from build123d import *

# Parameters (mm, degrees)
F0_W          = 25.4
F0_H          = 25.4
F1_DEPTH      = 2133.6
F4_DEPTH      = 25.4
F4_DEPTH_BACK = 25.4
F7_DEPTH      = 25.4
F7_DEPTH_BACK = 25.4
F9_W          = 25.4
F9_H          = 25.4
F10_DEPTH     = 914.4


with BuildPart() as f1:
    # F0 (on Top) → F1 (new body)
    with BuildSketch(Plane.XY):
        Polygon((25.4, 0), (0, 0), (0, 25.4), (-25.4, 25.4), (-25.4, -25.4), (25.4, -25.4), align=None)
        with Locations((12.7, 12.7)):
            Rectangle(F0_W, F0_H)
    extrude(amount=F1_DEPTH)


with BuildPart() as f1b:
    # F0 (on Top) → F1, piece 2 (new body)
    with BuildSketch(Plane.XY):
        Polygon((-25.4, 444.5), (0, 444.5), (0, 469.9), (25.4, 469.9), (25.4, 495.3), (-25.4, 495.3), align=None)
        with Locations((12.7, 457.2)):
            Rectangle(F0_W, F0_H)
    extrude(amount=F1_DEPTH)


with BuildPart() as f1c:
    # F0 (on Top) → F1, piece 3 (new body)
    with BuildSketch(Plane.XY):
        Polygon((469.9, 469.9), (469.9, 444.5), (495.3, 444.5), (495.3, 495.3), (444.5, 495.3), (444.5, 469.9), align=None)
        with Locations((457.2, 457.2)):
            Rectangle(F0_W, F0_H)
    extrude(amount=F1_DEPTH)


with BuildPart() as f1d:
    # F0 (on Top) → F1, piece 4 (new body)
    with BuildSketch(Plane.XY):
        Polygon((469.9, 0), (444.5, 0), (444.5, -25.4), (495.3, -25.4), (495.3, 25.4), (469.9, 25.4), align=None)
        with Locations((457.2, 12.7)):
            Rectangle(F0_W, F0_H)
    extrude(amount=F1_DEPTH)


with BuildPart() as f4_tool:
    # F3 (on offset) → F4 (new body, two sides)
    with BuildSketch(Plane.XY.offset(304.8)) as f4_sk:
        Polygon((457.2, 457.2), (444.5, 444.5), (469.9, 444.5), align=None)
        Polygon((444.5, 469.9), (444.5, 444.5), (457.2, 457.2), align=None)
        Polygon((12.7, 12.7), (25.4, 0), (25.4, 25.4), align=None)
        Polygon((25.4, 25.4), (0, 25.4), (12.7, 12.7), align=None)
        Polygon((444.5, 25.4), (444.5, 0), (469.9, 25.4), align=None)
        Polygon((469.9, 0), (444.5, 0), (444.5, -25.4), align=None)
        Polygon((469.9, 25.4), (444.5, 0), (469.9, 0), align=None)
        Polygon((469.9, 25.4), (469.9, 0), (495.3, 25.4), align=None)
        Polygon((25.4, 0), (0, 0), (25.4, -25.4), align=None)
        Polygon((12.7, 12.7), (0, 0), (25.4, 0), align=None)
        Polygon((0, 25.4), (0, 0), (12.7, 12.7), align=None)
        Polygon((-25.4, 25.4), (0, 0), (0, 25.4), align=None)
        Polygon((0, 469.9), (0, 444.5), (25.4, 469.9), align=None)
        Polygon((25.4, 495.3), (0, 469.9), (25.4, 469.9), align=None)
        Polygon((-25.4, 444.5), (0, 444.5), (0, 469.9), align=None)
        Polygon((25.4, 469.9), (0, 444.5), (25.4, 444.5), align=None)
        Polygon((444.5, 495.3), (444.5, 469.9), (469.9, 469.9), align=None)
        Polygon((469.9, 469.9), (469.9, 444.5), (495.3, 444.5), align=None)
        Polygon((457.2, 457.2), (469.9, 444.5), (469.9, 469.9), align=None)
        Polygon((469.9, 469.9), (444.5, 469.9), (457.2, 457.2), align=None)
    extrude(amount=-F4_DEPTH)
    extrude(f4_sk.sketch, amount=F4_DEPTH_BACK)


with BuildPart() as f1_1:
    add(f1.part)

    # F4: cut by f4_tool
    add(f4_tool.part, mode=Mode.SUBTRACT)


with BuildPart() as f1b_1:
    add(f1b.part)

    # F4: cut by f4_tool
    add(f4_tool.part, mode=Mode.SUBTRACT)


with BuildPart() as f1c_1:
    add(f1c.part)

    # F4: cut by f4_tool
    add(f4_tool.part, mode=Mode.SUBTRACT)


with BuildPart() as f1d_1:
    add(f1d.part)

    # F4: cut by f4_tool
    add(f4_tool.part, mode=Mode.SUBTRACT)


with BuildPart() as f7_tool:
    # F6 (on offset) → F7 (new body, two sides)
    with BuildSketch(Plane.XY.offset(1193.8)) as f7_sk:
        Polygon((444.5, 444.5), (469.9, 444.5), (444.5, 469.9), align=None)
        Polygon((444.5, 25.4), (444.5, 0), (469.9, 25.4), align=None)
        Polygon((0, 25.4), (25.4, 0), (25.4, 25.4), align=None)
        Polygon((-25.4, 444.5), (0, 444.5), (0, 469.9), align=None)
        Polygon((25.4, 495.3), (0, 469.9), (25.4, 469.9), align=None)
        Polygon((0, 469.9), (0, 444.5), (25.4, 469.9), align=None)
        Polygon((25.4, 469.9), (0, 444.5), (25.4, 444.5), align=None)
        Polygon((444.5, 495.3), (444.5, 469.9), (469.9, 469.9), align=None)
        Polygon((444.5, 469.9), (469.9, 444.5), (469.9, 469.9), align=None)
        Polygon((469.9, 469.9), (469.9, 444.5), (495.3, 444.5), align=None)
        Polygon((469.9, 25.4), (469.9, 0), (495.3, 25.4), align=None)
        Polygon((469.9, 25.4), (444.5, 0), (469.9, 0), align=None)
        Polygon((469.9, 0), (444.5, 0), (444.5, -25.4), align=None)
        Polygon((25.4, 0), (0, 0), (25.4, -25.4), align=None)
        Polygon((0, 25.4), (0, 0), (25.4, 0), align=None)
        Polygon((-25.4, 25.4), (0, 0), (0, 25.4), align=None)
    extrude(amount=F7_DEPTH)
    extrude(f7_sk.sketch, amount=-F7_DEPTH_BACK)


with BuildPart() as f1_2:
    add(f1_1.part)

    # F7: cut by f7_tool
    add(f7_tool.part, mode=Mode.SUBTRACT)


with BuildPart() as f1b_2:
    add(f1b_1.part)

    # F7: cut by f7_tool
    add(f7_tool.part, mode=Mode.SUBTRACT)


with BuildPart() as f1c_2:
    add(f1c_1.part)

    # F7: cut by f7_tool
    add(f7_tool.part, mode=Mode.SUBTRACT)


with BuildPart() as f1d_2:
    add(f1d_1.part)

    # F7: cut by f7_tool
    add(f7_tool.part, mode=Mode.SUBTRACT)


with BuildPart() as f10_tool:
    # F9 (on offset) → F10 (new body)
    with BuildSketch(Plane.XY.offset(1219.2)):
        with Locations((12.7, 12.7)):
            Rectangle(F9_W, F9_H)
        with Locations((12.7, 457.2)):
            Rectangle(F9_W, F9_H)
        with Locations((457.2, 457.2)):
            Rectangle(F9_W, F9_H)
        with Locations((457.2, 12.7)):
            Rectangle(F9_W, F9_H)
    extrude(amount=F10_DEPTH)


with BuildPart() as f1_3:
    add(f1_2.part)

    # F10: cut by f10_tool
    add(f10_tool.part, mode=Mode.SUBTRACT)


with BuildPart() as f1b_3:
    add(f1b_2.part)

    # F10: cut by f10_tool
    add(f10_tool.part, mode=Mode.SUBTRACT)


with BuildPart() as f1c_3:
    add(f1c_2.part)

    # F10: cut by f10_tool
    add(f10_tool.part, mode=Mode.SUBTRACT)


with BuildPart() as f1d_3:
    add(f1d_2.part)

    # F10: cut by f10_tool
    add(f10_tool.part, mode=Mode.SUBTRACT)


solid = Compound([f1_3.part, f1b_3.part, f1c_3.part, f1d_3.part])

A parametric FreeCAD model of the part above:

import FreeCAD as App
import Part
import Sketcher
from FreeCAD import Vector
Q = App.Units.Quantity

doc = App.newDocument("Part")
body = doc.addObject("PartDesign::Body", "Body")

# Sketch on XY plane
sketch1 = body.newObject("Sketcher::SketchObject", "Sketch")
sketch1.AttachmentSupport = (doc.getObject("XY_Plane"), [""])
sketch1.MapMode = "FlatFace"
sketch1.addGeometry([
    Part.LineSegment(Vector(-25.4, 25.4, 0), Vector(-25.4, -25.4, 0)),
    Part.LineSegment(Vector(-25.4, -25.4, 0), Vector(25.4, -25.4, 0)),
    Part.LineSegment(Vector(25.4, -25.4, 0), Vector(25.4, 25.4, 0)),
    Part.LineSegment(Vector(25.4, 25.4, 0), Vector(-25.4, 25.4, 0)),
], False)
sketch1.addConstraint([
    Sketcher.Constraint("Coincident", 0, 2, 1, 1),
    Sketcher.Constraint("Coincident", 1, 2, 2, 1),
    Sketcher.Constraint("Coincident", 2, 2, 3, 1),
    Sketcher.Constraint("Coincident", 3, 2, 0, 1),
    Sketcher.Constraint("Vertical", 0),
    Sketcher.Constraint("Horizontal", 1),
    Sketcher.Constraint("Vertical", 2),
    Sketcher.Constraint("Horizontal", 3),
    Sketcher.Constraint("Symmetric", 0, 2, 2, 2, -1, 1),
    Sketcher.Constraint("Equal", 3, 0),
    Sketcher.Constraint("DistanceX", 1, 1, 1, 2, Q("2 in")),
])
pad1 = body.newObject("PartDesign::Pad", "Pad")
pad1.Profile = sketch1
pad1.Length = Q("84 in")
body2 = doc.addObject("PartDesign::Body", "Body001")

# Sketch on XY plane
sketch2 = body2.newObject("Sketcher::SketchObject", "Sketch001")
sketch2.AttachmentSupport = (doc.getObject("XY_Plane001"), [""])
sketch2.MapMode = "FlatFace"
sketch2.addGeometry([
    Part.LineSegment(Vector(-25.4, 444.5, 0), Vector(25.4, 444.5, 0)),
    Part.LineSegment(Vector(25.4, 444.5, 0), Vector(25.4, 495.3, 0)),
    Part.LineSegment(Vector(25.4, 495.3, 0), Vector(-25.4, 495.3, 0)),
    Part.LineSegment(Vector(-25.4, 495.3, 0), Vector(-25.4, 444.5, 0)),
], False)
sketch2.addConstraint([
    Sketcher.Constraint("Coincident", 0, 2, 1, 1),
    Sketcher.Constraint("Coincident", 1, 2, 2, 1),
    Sketcher.Constraint("Coincident", 2, 2, 3, 1),
    Sketcher.Constraint("Coincident", 3, 2, 0, 1),
    Sketcher.Constraint("Horizontal", 0),
    Sketcher.Constraint("Vertical", 1),
    Sketcher.Constraint("Horizontal", 2),
    Sketcher.Constraint("Vertical", 3),
    Sketcher.Constraint("Equal", 2, 1),
    Sketcher.Constraint("DistanceX", 0, 1, 0, 2, Q("2 in")),
    Sketcher.Constraint("DistanceX", -1, 1, 0, 2, Q("1 in")),
    Sketcher.Constraint("DistanceY", -1, 1, 0, 2, Q("17.5 in")),
])
pad2 = body2.newObject("PartDesign::Pad", "Pad001")
pad2.Profile = sketch2
pad2.Length = Q("84 in")
body3 = doc.addObject("PartDesign::Body", "Body002")

# Sketch on XY plane
sketch3 = body3.newObject("Sketcher::SketchObject", "Sketch002")
sketch3.AttachmentSupport = (doc.getObject("XY_Plane002"), [""])
sketch3.MapMode = "FlatFace"
sketch3.addGeometry([
    Part.LineSegment(Vector(495.3, 444.5, 0), Vector(495.3, 495.3, 0)),
    Part.LineSegment(Vector(495.3, 495.3, 0), Vector(444.5, 495.3, 0)),
    Part.LineSegment(Vector(444.5, 495.3, 0), Vector(444.5, 444.5, 0)),
    Part.LineSegment(Vector(444.5, 444.5, 0), Vector(495.3, 444.5, 0)),
], False)
sketch3.addConstraint([
    Sketcher.Constraint("Coincident", 0, 2, 1, 1),
    Sketcher.Constraint("Coincident", 1, 2, 2, 1),
    Sketcher.Constraint("Coincident", 2, 2, 3, 1),
    Sketcher.Constraint("Coincident", 3, 2, 0, 1),
    Sketcher.Constraint("Vertical", 0),
    Sketcher.Constraint("Horizontal", 1),
    Sketcher.Constraint("Vertical", 2),
    Sketcher.Constraint("Horizontal", 3),
    Sketcher.Constraint("Equal", 3, 0),
    Sketcher.Constraint("DistanceX", 1, 2, 1, 1, Q("2 in")),
    Sketcher.Constraint("DistanceX", -1, 1, 0, 2, Q("19.5 in")),
    Sketcher.Constraint("DistanceY", -1, 1, 0, 2, Q("19.5 in")),
])
pad3 = body3.newObject("PartDesign::Pad", "Pad002")
pad3.Profile = sketch3
pad3.Length = Q("84 in")
body4 = doc.addObject("PartDesign::Body", "Body003")

# Sketch on XY plane
sketch4 = body4.newObject("Sketcher::SketchObject", "Sketch003")
sketch4.AttachmentSupport = (doc.getObject("XY_Plane003"), [""])
sketch4.MapMode = "FlatFace"
sketch4.addGeometry([
    Part.LineSegment(Vector(444.5, -25.4, 0), Vector(495.3, -25.4, 0)),
    Part.LineSegment(Vector(495.3, -25.4, 0), Vector(495.3, 25.4, 0)),
    Part.LineSegment(Vector(495.3, 25.4, 0), Vector(444.5, 25.4, 0)),
    Part.LineSegment(Vector(444.5, 25.4, 0), Vector(444.5, -25.4, 0)),
], False)
sketch4.addConstraint([
    Sketcher.Constraint("Coincident", 0, 2, 1, 1),
    Sketcher.Constraint("Coincident", 1, 2, 2, 1),
    Sketcher.Constraint("Coincident", 2, 2, 3, 1),
    Sketcher.Constraint("Coincident", 3, 2, 0, 1),
    Sketcher.Constraint("Horizontal", 0),
    Sketcher.Constraint("Vertical", 1),
    Sketcher.Constraint("Horizontal", 2),
    Sketcher.Constraint("Vertical", 3),
    Sketcher.Constraint("Equal", 2, 1),
    Sketcher.Constraint("DistanceX", 0, 1, 0, 2, Q("2 in")),
    Sketcher.Constraint("DistanceY", 0, 2, -1, 1, Q("1 in")),
    Sketcher.Constraint("DistanceX", -1, 1, 0, 2, Q("19.5 in")),
])
pad4 = body4.newObject("PartDesign::Pad", "Pad003")
pad4.Profile = sketch4
pad4.Length = Q("84 in")
body5 = doc.addObject("PartDesign::Body", "Body004")
body5.AllowCompound = True

# Sketch on XY plane
sketch5 = body5.newObject("Sketcher::SketchObject", "Sketch004")
sketch5.AttachmentSupport = (doc.getObject("XY_Plane004"), [""])
sketch5.MapMode = "FlatFace"
sketch5.AttachmentOffset = App.Placement(Vector(0, 0, 12 * 25.4), App.Rotation())
sketch5.addGeometry([
    Part.LineSegment(Vector(444.5, 444.5, 0), Vector(495.3, 444.5, 0)),  # 0
    Part.LineSegment(Vector(495.3, 444.5, 0), Vector(444.5, 495.3, 0)),  # 1
    Part.LineSegment(Vector(444.5, 495.3, 0), Vector(444.5, 444.5, 0)),  # 2
    Part.LineSegment(Vector(25.4, 25.4, 0), Vector(-25.4, 25.4, 0)),  # 3
    Part.LineSegment(Vector(-25.4, 25.4, 0), Vector(25.4, -25.4, 0)),  # 4
    Part.LineSegment(Vector(25.4, -25.4, 0), Vector(25.4, 25.4, 0)),  # 5
    Part.LineSegment(Vector(444.5, 25.4, 0), Vector(444.5, -25.4, 0)),  # 6
    Part.LineSegment(Vector(444.5, -25.4, 0), Vector(495.3, 25.4, 0)),  # 7
    Part.LineSegment(Vector(495.3, 25.4, 0), Vector(444.5, 25.4, 0)),  # 8
    Part.LineSegment(Vector(25.4, 495.3, 0), Vector(-25.4, 444.5, 0)),  # 9
    Part.LineSegment(Vector(-25.4, 444.5, 0), Vector(25.4, 444.5, 0)),  # 10
    Part.LineSegment(Vector(25.4, 444.5, 0), Vector(25.4, 495.3, 0)),  # 11
], False)
sketch5.addConstraint([
    Sketcher.Constraint("Coincident", 0, 2, 1, 1),
    Sketcher.Constraint("Coincident", 1, 2, 2, 1),
    Sketcher.Constraint("Coincident", 2, 2, 0, 1),
    Sketcher.Constraint("Coincident", 3, 2, 4, 1),
    Sketcher.Constraint("Coincident", 4, 2, 5, 1),
    Sketcher.Constraint("Coincident", 5, 2, 3, 1),
    Sketcher.Constraint("Coincident", 6, 2, 7, 1),
    Sketcher.Constraint("Coincident", 7, 2, 8, 1),
    Sketcher.Constraint("Coincident", 8, 2, 6, 1),
    Sketcher.Constraint("Coincident", 9, 2, 10, 1),
    Sketcher.Constraint("Coincident", 10, 2, 11, 1),
    Sketcher.Constraint("Coincident", 11, 2, 9, 1),
    Sketcher.Constraint("Horizontal", 0),
    Sketcher.Constraint("Vertical", 2),
    Sketcher.Constraint("Horizontal", 3),
    Sketcher.Constraint("Vertical", 5),
    Sketcher.Constraint("Vertical", 6),
    Sketcher.Constraint("Horizontal", 8),
    Sketcher.Constraint("Horizontal", 10),
    Sketcher.Constraint("Vertical", 11),
    Sketcher.Constraint("Symmetric", 3, 2, 4, 2, -1, 1),
    Sketcher.Constraint("Parallel", 1, 4),
    Sketcher.Constraint("Perpendicular", 4, 7),
    Sketcher.Constraint("Parallel", 7, 9),
    Sketcher.Constraint("Horizontal", 4, 2, 6, 2),
    Sketcher.Constraint("Horizontal", 5, 2, 7, 2),
    Sketcher.Constraint("Horizontal", 2, 2, 9, 2),
    Sketcher.Constraint("Horizontal", 1, 2, 11, 2),
    Sketcher.Constraint("Vertical", 2, 2, 6, 2),
    Sketcher.Constraint("Vertical", 0, 2, 7, 2),
    Sketcher.Constraint("Vertical", 3, 2, 9, 2),
    Sketcher.Constraint("Vertical", 5, 2, 10, 2),
    Sketcher.Constraint("DistanceX", 0, 1, 0, 2, Q("2 in")),
    Sketcher.Constraint("DistanceX", -1, 1, 0, 2, Q("19.5 in")),
    Sketcher.Constraint("DistanceY", -1, 1, 0, 2, Q("17.5 in")),
])
pad5 = body5.newObject("PartDesign::Pad", "Pad004")
pad5.Profile = sketch5
pad5.Type = "TwoLengths"
pad5.Length = Q("1 in")
pad5.Length2 = Q("1 in")
pad5.Reversed = True
doc.recompute()

body6 = doc.addObject("PartDesign::Body", "Body005")
body6.BaseFeature = body5
boolean = body.newObject("PartDesign::Boolean", "Boolean")
boolean.Type = "Cut"
boolean.addObjects([body6])
doc.recompute()

body7 = doc.addObject("PartDesign::Body", "Body006")
body7.BaseFeature = body5
boolean2 = body2.newObject("PartDesign::Boolean", "Boolean001")
boolean2.Type = "Cut"
boolean2.addObjects([body7])
doc.recompute()

body8 = doc.addObject("PartDesign::Body", "Body007")
body8.BaseFeature = body5
boolean3 = body3.newObject("PartDesign::Boolean", "Boolean002")
boolean3.Type = "Cut"
boolean3.addObjects([body8])
doc.recompute()

boolean4 = body4.newObject("PartDesign::Boolean", "Boolean003")
boolean4.Type = "Cut"
boolean4.addObjects([body5])
body9 = doc.addObject("PartDesign::Body", "Body008")
body9.AllowCompound = True

# Sketch on XY plane
sketch6 = body9.newObject("Sketcher::SketchObject", "Sketch005")
sketch6.AttachmentSupport = (doc.getObject("XY_Plane008"), [""])
sketch6.MapMode = "FlatFace"
sketch6.AttachmentOffset = App.Placement(Vector(0, 0, 47 * 25.4), App.Rotation())
sketch6.addGeometry([
    Part.LineSegment(Vector(444.5, 444.5, 0), Vector(495.3, 444.5, 0)),  # 0
    Part.LineSegment(Vector(495.3, 444.5, 0), Vector(444.5, 495.3, 0)),  # 1
    Part.LineSegment(Vector(444.5, 495.3, 0), Vector(444.5, 444.5, 0)),  # 2
    Part.LineSegment(Vector(444.5, 25.4, 0), Vector(444.5, -25.4, 0)),  # 3
    Part.LineSegment(Vector(444.5, -25.4, 0), Vector(495.3, 25.4, 0)),  # 4
    Part.LineSegment(Vector(495.3, 25.4, 0), Vector(444.5, 25.4, 0)),  # 5
    Part.LineSegment(Vector(25.4, 25.4, 0), Vector(-25.4, 25.4, 0)),  # 6
    Part.LineSegment(Vector(-25.4, 25.4, 0), Vector(25.4, -25.4, 0)),  # 7
    Part.LineSegment(Vector(25.4, -25.4, 0), Vector(25.4, 25.4, 0)),  # 8
    Part.LineSegment(Vector(-25.4, 444.5, 0), Vector(25.4, 444.5, 0)),  # 9
    Part.LineSegment(Vector(25.4, 444.5, 0), Vector(25.4, 495.3, 0)),  # 10
    Part.LineSegment(Vector(25.4, 495.3, 0), Vector(-25.4, 444.5, 0)),  # 11
], False)
sketch6.addConstraint([
    Sketcher.Constraint("Coincident", 0, 2, 1, 1),
    Sketcher.Constraint("Coincident", 1, 2, 2, 1),
    Sketcher.Constraint("Coincident", 2, 2, 0, 1),
    Sketcher.Constraint("Coincident", 3, 2, 4, 1),
    Sketcher.Constraint("Coincident", 4, 2, 5, 1),
    Sketcher.Constraint("Coincident", 5, 2, 3, 1),
    Sketcher.Constraint("Coincident", 6, 2, 7, 1),
    Sketcher.Constraint("Coincident", 7, 2, 8, 1),
    Sketcher.Constraint("Coincident", 8, 2, 6, 1),
    Sketcher.Constraint("Coincident", 9, 2, 10, 1),
    Sketcher.Constraint("Coincident", 10, 2, 11, 1),
    Sketcher.Constraint("Coincident", 11, 2, 9, 1),
    Sketcher.Constraint("Horizontal", 0),
    Sketcher.Constraint("Vertical", 2),
    Sketcher.Constraint("Vertical", 3),
    Sketcher.Constraint("Horizontal", 5),
    Sketcher.Constraint("Horizontal", 6),
    Sketcher.Constraint("Vertical", 8),
    Sketcher.Constraint("Horizontal", 9),
    Sketcher.Constraint("Vertical", 10),
    Sketcher.Constraint("Symmetric", 6, 2, 7, 2, -1, 1),
    Sketcher.Constraint("Perpendicular", 1, 4),
    Sketcher.Constraint("Perpendicular", 4, 7),
    Sketcher.Constraint("Perpendicular", 7, 11),
    Sketcher.Constraint("Horizontal", 5, 2, 6, 2),
    Sketcher.Constraint("Horizontal", 3, 2, 7, 2),
    Sketcher.Constraint("Horizontal", 2, 2, 9, 2),
    Sketcher.Constraint("Horizontal", 1, 2, 10, 2),
    Sketcher.Constraint("Vertical", 2, 2, 3, 2),
    Sketcher.Constraint("Vertical", 0, 2, 4, 2),
    Sketcher.Constraint("Vertical", 8, 2, 9, 2),
    Sketcher.Constraint("Vertical", 6, 2, 11, 2),
    Sketcher.Constraint("DistanceX", 0, 1, 0, 2, Q("2 in")),
    Sketcher.Constraint("DistanceX", -1, 1, 0, 2, Q("19.5 in")),
    Sketcher.Constraint("DistanceY", -1, 1, 0, 2, Q("17.5 in")),
])
pad6 = body9.newObject("PartDesign::Pad", "Pad005")
pad6.Profile = sketch6
pad6.Type = "TwoLengths"
pad6.Length = Q("1 in")
pad6.Length2 = Q("1 in")
doc.recompute()

body10 = doc.addObject("PartDesign::Body", "Body009")
body10.BaseFeature = body9
boolean5 = body.newObject("PartDesign::Boolean", "Boolean004")
boolean5.Type = "Cut"
boolean5.addObjects([body10])
doc.recompute()

body11 = doc.addObject("PartDesign::Body", "Body010")
body11.BaseFeature = body9
boolean6 = body2.newObject("PartDesign::Boolean", "Boolean005")
boolean6.Type = "Cut"
boolean6.addObjects([body11])
doc.recompute()

body12 = doc.addObject("PartDesign::Body", "Body011")
body12.BaseFeature = body9
boolean7 = body3.newObject("PartDesign::Boolean", "Boolean006")
boolean7.Type = "Cut"
boolean7.addObjects([body12])
doc.recompute()

boolean8 = body4.newObject("PartDesign::Boolean", "Boolean007")
boolean8.Type = "Cut"
boolean8.addObjects([body9])
body13 = doc.addObject("PartDesign::Body", "Body012")
body13.AllowCompound = True

# Sketch on XY plane
sketch7 = body13.newObject("Sketcher::SketchObject", "Sketch006")
sketch7.AttachmentSupport = (doc.getObject("XY_Plane012"), [""])
sketch7.MapMode = "FlatFace"
sketch7.AttachmentOffset = App.Placement(Vector(0, 0, 48 * 25.4), App.Rotation())
sketch7.addGeometry([
    Part.LineSegment(Vector(0, 25.4, 0), Vector(0, 0, 0)),  # 0
    Part.LineSegment(Vector(0, 0, 0), Vector(25.4, 0, 0)),  # 1
    Part.LineSegment(Vector(25.4, 0, 0), Vector(25.4, 25.4, 0)),  # 2
    Part.LineSegment(Vector(25.4, 25.4, 0), Vector(0, 25.4, 0)),  # 3
    Part.LineSegment(Vector(0, 469.9, 0), Vector(0, 444.5, 0)),  # 4
    Part.LineSegment(Vector(0, 444.5, 0), Vector(25.4, 444.5, 0)),  # 5
    Part.LineSegment(Vector(25.4, 444.5, 0), Vector(25.4, 469.9, 0)),  # 6
    Part.LineSegment(Vector(25.4, 469.9, 0), Vector(0, 469.9, 0)),  # 7
    Part.LineSegment(Vector(444.5, 469.9, 0), Vector(444.5, 444.5, 0)),  # 8
    Part.LineSegment(Vector(444.5, 444.5, 0), Vector(469.9, 444.5, 0)),  # 9
    Part.LineSegment(Vector(469.9, 444.5, 0), Vector(469.9, 469.9, 0)),  # 10
    Part.LineSegment(Vector(469.9, 469.9, 0), Vector(444.5, 469.9, 0)),  # 11
    Part.LineSegment(Vector(444.5, 25.4, 0), Vector(444.5, 0, 0)),  # 12
    Part.LineSegment(Vector(444.5, 0, 0), Vector(469.9, 0, 0)),  # 13
    Part.LineSegment(Vector(469.9, 0, 0), Vector(469.9, 25.4, 0)),  # 14
    Part.LineSegment(Vector(469.9, 25.4, 0), Vector(444.5, 25.4, 0)),  # 15
], False)
sketch7.addConstraint([
    Sketcher.Constraint("Coincident", 0, 2, 1, 1),
    Sketcher.Constraint("Coincident", 1, 2, 2, 1),
    Sketcher.Constraint("Coincident", 2, 2, 3, 1),
    Sketcher.Constraint("Coincident", 3, 2, 0, 1),
    Sketcher.Constraint("Coincident", 4, 2, 5, 1),
    Sketcher.Constraint("Coincident", 5, 2, 6, 1),
    Sketcher.Constraint("Coincident", 6, 2, 7, 1),
    Sketcher.Constraint("Coincident", 7, 2, 4, 1),
    Sketcher.Constraint("Coincident", 8, 2, 9, 1),
    Sketcher.Constraint("Coincident", 9, 2, 10, 1),
    Sketcher.Constraint("Coincident", 10, 2, 11, 1),
    Sketcher.Constraint("Coincident", 11, 2, 8, 1),
    Sketcher.Constraint("Coincident", 12, 2, 13, 1),
    Sketcher.Constraint("Coincident", 13, 2, 14, 1),
    Sketcher.Constraint("Coincident", 14, 2, 15, 1),
    Sketcher.Constraint("Coincident", 15, 2, 12, 1),
    Sketcher.Constraint("Vertical", 0),
    Sketcher.Constraint("Horizontal", 1),
    Sketcher.Constraint("Vertical", 2),
    Sketcher.Constraint("Horizontal", 3),
    Sketcher.Constraint("Vertical", 4),
    Sketcher.Constraint("Horizontal", 5),
    Sketcher.Constraint("Vertical", 6),
    Sketcher.Constraint("Horizontal", 7),
    Sketcher.Constraint("Vertical", 8),
    Sketcher.Constraint("Horizontal", 9),
    Sketcher.Constraint("Vertical", 10),
    Sketcher.Constraint("Horizontal", 11),
    Sketcher.Constraint("Vertical", 12),
    Sketcher.Constraint("Horizontal", 13),
    Sketcher.Constraint("Vertical", 14),
    Sketcher.Constraint("Horizontal", 15),
    Sketcher.Constraint("Coincident", 0, 2, -1, 1),
    Sketcher.Constraint("PointOnObject", 4, 2, -2),
    Sketcher.Constraint("PointOnObject", 12, 2, -1),
    Sketcher.Constraint("Horizontal", 5, 2, 8, 2),
    Sketcher.Constraint("Horizontal", 7, 2, 10, 2),
    Sketcher.Constraint("Horizontal", 3, 2, 14, 2),
    Sketcher.Constraint("Vertical", 2, 2, 5, 2),
    Sketcher.Constraint("Vertical", 11, 2, 12, 2),
    Sketcher.Constraint("Vertical", 10, 2, 13, 2),
    Sketcher.Constraint("Equal", 7, 9),
    Sketcher.Constraint("Equal", 15, 0),
    Sketcher.Constraint("Equal", 2, 4),
    Sketcher.Constraint("DistanceX", 1, 1, 1, 2, Q("1 in")),
    Sketcher.Constraint("DistanceY", -1, 1, 4, 2, Q("17.5 in")),
    Sketcher.Constraint("DistanceX", -1, 1, 8, 2, Q("17.5 in")),
])
pad7 = body13.newObject("PartDesign::Pad", "Pad006")
pad7.Profile = sketch7
pad7.Length = Q("36 in")
doc.recompute()

body14 = doc.addObject("PartDesign::Body", "Body013")
body14.BaseFeature = body13
boolean9 = body.newObject("PartDesign::Boolean", "Boolean008")
boolean9.Type = "Cut"
boolean9.addObjects([body14])
doc.recompute()

body15 = doc.addObject("PartDesign::Body", "Body014")
body15.BaseFeature = body13
boolean10 = body2.newObject("PartDesign::Boolean", "Boolean009")
boolean10.Type = "Cut"
boolean10.addObjects([body15])
doc.recompute()

body16 = doc.addObject("PartDesign::Body", "Body015")
body16.BaseFeature = body13
boolean11 = body3.newObject("PartDesign::Boolean", "Boolean010")
boolean11.Type = "Cut"
boolean11.addObjects([body16])
doc.recompute()

boolean12 = body4.newObject("PartDesign::Boolean", "Boolean011")
boolean12.Type = "Cut"
boolean12.addObjects([body13])

doc.recompute()
